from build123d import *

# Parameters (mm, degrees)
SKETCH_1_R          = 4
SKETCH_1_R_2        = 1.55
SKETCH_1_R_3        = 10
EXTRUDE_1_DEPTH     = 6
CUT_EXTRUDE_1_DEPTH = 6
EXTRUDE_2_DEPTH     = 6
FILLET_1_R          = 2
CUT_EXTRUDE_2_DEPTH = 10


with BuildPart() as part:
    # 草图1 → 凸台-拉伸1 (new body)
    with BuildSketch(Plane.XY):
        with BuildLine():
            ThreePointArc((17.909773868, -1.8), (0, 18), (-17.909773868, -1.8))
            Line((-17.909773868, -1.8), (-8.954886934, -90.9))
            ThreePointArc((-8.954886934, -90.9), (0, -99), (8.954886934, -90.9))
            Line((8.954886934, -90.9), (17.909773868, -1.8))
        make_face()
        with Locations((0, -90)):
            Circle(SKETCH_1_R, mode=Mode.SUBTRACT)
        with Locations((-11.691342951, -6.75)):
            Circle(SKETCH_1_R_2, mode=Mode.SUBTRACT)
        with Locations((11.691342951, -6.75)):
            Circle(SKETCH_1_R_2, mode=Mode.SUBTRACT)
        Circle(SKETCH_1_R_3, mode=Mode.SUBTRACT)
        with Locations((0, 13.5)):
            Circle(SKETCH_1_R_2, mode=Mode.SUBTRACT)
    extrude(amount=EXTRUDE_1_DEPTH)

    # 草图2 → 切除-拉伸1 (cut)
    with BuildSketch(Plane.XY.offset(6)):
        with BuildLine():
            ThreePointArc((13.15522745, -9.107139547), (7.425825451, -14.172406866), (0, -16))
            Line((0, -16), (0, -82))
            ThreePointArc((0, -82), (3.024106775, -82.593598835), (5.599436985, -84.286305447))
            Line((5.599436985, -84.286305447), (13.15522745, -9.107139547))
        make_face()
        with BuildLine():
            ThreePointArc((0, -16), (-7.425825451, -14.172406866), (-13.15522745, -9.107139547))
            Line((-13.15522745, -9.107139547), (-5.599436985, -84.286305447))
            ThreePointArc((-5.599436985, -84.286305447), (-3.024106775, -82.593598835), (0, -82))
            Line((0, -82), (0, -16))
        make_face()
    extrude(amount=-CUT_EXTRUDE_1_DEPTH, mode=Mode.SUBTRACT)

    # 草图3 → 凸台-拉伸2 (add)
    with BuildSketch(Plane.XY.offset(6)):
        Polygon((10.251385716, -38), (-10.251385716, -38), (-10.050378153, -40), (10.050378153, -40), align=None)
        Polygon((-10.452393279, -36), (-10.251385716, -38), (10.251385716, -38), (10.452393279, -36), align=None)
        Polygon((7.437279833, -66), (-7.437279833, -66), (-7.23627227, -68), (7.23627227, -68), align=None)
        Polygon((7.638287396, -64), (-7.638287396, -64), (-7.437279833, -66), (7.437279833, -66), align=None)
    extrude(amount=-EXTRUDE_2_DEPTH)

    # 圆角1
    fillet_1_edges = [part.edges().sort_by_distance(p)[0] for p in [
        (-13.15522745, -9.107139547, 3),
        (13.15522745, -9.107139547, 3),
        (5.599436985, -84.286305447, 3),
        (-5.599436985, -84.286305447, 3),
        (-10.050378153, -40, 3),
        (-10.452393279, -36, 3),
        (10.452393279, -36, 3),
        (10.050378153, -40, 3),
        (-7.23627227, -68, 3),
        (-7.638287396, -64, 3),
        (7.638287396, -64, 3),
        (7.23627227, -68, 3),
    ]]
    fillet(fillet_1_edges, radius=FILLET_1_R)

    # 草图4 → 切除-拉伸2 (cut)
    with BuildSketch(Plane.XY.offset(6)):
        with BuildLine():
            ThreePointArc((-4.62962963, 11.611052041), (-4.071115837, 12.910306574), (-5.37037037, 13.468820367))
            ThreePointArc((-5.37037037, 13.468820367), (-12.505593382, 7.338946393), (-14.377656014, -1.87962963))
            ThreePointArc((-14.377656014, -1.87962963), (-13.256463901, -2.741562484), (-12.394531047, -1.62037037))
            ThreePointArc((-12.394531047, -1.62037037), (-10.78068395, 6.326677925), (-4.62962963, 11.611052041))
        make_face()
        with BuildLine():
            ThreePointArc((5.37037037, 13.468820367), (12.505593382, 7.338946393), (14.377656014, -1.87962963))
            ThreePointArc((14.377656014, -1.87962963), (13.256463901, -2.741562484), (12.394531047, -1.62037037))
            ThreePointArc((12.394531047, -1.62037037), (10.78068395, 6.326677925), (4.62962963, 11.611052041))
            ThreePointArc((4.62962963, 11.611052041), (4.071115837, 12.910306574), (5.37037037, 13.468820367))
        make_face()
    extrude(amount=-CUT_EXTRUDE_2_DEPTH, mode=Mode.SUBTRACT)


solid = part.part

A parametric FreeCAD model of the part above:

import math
import FreeCAD as App
import Part
import Sketcher

V = App.Vector
Q = App.Units.Quantity


def edges_at(feature, points):
    """Names of the edges that pass closest to the given points."""
    edges = feature.Shape.Edges
    near = lambda p: min(range(len(edges)), key=lambda i: edges[i].distToShape(Part.Vertex(*p))[0])
    return sorted({f"Edge{near(p) + 1}" for p in points})


def add_polygon(sketch, points):
    """Adds a closed chain of lines whose ends are joined by coincident constraints."""
    first, n = sketch.GeometryCount, len(points)
    for a, b in zip(points, points[1:] + points[:1]):
        sketch.addGeometry(Part.LineSegment(App.Vector(*a, 0), App.Vector(*b, 0)), False)
    for i in range(n):
        sketch.addConstraint(Sketcher.Constraint("Coincident", first + i, 2, first + (i + 1) % n, 1))

doc = App.newDocument("Part")
body = doc.addObject("PartDesign::Body", "Body")

sketch1 = body.newObject("Sketcher::SketchObject", "Sketch")
sketch1.AttachmentSupport = (doc.getObject("XY_Plane"), [""])
sketch1.MapMode = "FlatFace"
sketch1.addGeometry([
    Part.ArcOfCircle(Part.Circle(V(0, 0, 0), V(0, 0, 1), 18), math.radians(-6), math.radians(186)),
    Part.LineSegment(V(-17.9, -1.8, 0), V(-9, -90.9, 0)),
    Part.ArcOfCircle(Part.Circle(V(0, -90, 0), V(0, 0, 1), 9), math.radians(-174), math.radians(-6)),
    Part.LineSegment(V(9, -90.9, 0), V(17.9, -1.8, 0)),
    Part.Circle(V(0, -90, 0), V(0, 0, 1), 4),
    Part.Circle(V(-11.7, -6.8, 0), V(0, 0, 1), 1.6),
    Part.Circle(V(0, 0, 0), V(0, 0, 1), 10),
    Part.Circle(V(0, 13.5, 0), V(0, 0, 1), 1.6),
    Part.Circle(V(11.7, -6.8, 0), V(0, 0, 1), 1.6),
], False)
sketch1.addConstraint([
    Sketcher.Constraint("Tangent", 0, 2, 1, 1),
    Sketcher.Constraint("Tangent", 1, 2, 2, 1),
    Sketcher.Constraint("Tangent", 2, 2, 3, 1),
    Sketcher.Constraint("Tangent", 3, 2, 0, 1),
    Sketcher.Constraint("Coincident", 0, 3, -1, 1),
    Sketcher.Constraint("Coincident", 6, 3, -1, 1),
    Sketcher.Constraint("Coincident", 4, 3, 2, 3),
    Sketcher.Constraint("Equal", 5, 7),
    Sketcher.Constraint("Equal", 7, 8),
    Sketcher.Constraint("Symmetric", 5, 3, 8, 3, -2),
    Sketcher.Constraint("PointOnObject", 2, 3, -2),
    Sketcher.Constraint("PointOnObject", 7, 3, -2),
    Sketcher.Constraint("Diameter", 4, Q("8 mm")),
    Sketcher.Constraint("Diameter", 6, Q("20 mm")),
    Sketcher.Constraint("Radius", 0, Q("18 mm")),
    Sketcher.Constraint("Radius", 2, Q("9 mm")),
    Sketcher.Constraint("Diameter", 5, Q("3.1 mm")),
    Sketcher.Constraint("DistanceY", 2, 3, -1, 1, Q("90 mm")),
    Sketcher.Constraint("DistanceY", -1, 1, 7, 3, Q("13.5 mm")),
    Sketcher.Constraint("DistanceY", 5, 3, -1, 1, Q("6.75 mm")),
    Sketcher.Constraint("DistanceX", 0, 2, 5, 3, Q("6.218431 mm")),
])
pad1 = body.newObject("PartDesign::Pad", "Pad")
pad1.Profile = sketch1
pad1.Length = 6

sketch2 = body.newObject("Sketcher::SketchObject", "Sketch001")
sketch2.AttachmentSupport = (doc.getObject("XY_Plane"), [""])
sketch2.MapMode = "FlatFace"
sketch2.AttachmentOffset = App.Placement(V(0, 0, 6), App.Rotation())
sketch2.addGeometry([
    Part.ArcOfCircle(Part.Circle(V(0, 0, 0), V(0, 0, 1), 16), math.radians(-90), math.radians(-35)),
    Part.ArcOfCircle(Part.Circle(V(0, 0, 0), V(0, 0, 1), 16), math.radians(-145), math.radians(-90)),
    Part.LineSegment(V(-13, -9, 0), V(-6, -84, 0)),
    Part.ArcOfCircle(Part.Circle(V(0, -90, 0), V(0, 0, 1), 8), math.radians(90), math.radians(134)),
    Part.ArcOfCircle(Part.Circle(V(0, -90, 0), V(0, 0, 1), 8), math.radians(46), math.radians(90)),
    Part.LineSegment(V(6, -84, 0), V(13, -9, 0)),
], False)
sketch2.addConstraint([
    Sketcher.Constraint("Tangent", 0, 1, 1, 2),
    Sketcher.Constraint("Coincident", 1, 1, 2, 1),
    Sketcher.Constraint("Coincident", 2, 2, 3, 2),
    Sketcher.Constraint("Tangent", 3, 1, 4, 2),
    Sketcher.Constraint("Coincident", 4, 1, 5, 1),
    Sketcher.Constraint("Coincident", 5, 2, 0, 2),
    Sketcher.Constraint("Coincident", 0, 3, -1, 1),
    Sketcher.Constraint("Equal", 0, 1),
    Sketcher.Constraint("Equal", 3, 4),
    Sketcher.Constraint("Symmetric", 2, 2, 4, 1, -2),
    Sketcher.Constraint("PointOnObject", 0, 1, -2),
    Sketcher.Constraint("PointOnObject", 3, 1, -2),
    Sketcher.Constraint("Horizontal", 1, 1, 5, 2),
    Sketcher.Constraint("Radius", 0, Q("16 mm")),
    Sketcher.Constraint("Radius", 3, Q("8 mm")),
    Sketcher.Constraint("DistanceY", 3, 3, -1, 1, Q("90 mm")),
    Sketcher.Constraint("DistanceY", 1, 1, -1, 1, Q("9.10714 mm")),
    Sketcher.Constraint("DistanceX", 1, 1, 2, 2, Q("7.55579 mm")),
])
pocket1 = body.newObject("PartDesign::Pocket", "Pocket")
pocket1.Profile = sketch2
pocket1.Length = 6

sketch3 = body.newObject("Sketcher::SketchObject", "Sketch002")
sketch3.AttachmentSupport = (doc.getObject("XY_Plane"), [""])
sketch3.MapMode = "FlatFace"
sketch3.AttachmentOffset = App.Placement(V(0, 0, 6), App.Rotation())
add_polygon(sketch3, [(-10.1, -40), (10.1, -40), (10.5, -36), (-10.5, -36)])
add_polygon(sketch3, [(-7.2, -68), (7.2, -68), (7.6, -64), (-7.6, -64)])
sketch3.addConstraint([
    Sketcher.Constraint("Horizontal", 0),
    Sketcher.Constraint("Horizontal", 2),
    Sketcher.Constraint("Horizontal", 4),
    Sketcher.Constraint("Horizontal", 6),
    Sketcher.Constraint("Parallel", 1, 5),
    Sketcher.Constraint("Parallel", 3, 7),
    Sketcher.Constraint("Equal", 1, 3),
    Sketcher.Constraint("Equal", 3, 5),
    Sketcher.Constraint("DistanceY", 0, 2, -1, 1, Q("40 mm")),
    Sketcher.Constraint("DistanceY", 1, 2, -1, 1, Q("36 mm")),
    Sketcher.Constraint("DistanceY", 4, 2, -1, 1, Q("68 mm")),
    Sketcher.Constraint("Distance", 1, Q("4.020151 mm")),
    Sketcher.Constraint("DistanceX", 0, 1, 0, 2, Q("20.100756 mm")),
    Sketcher.Constraint("DistanceX", 4, 1, 4, 2, Q("14.472545 mm")),
    Sketcher.Constraint("DistanceX", -1, 1, 0, 2, Q("10.050378 mm")),
    Sketcher.Constraint("DistanceX", 4, 2, 1, 2, Q("3.216121 mm")),
])
pad2 = body.newObject("PartDesign::Pad", "Pad001")
pad2.Profile = sketch3
pad2.Length = 6
pad2.Reversed = True
doc.recompute()

fillet = body.newObject("PartDesign::Fillet", "Fillet")
fillet.Base = (pad2, edges_at(pad2, [
    (-13.155, -9.107, 3),
    (13.155, -9.107, 3),
    (5.599, -84.286, 3),
    (-5.599, -84.286, 3),
    (-10.05, -40, 3),
    (-10.452, -36, 3),
    (10.452, -36, 3),
    (10.05, -40, 3),
    (-7.236, -68, 3),
    (-7.638, -64, 3),
    (7.638, -64, 3),
    (7.236, -68, 3),
]))
fillet.Radius = 2

sketch4 = body.newObject("Sketcher::SketchObject", "Sketch003")
sketch4.AttachmentSupport = (doc.getObject("XY_Plane"), [""])
sketch4.MapMode = "FlatFace"
sketch4.AttachmentOffset = App.Placement(V(0, 0, 6), App.Rotation())
sketch4.addGeometry([
    Part.ArcOfCircle(Part.Circle(V(-5, 12.5, 0), V(0, 0, 1), 1), math.radians(-68), math.radians(112)),
    Part.ArcOfCircle(Part.Circle(V(0, 0, 0), V(0, 0, 1), 14.5), math.radians(112), math.radians(187)),
    Part.ArcOfCircle(Part.Circle(V(-13.4, -1.8, 0), V(0, 0, 1), 1), math.radians(-173), math.radians(7)),
    Part.ArcOfCircle(Part.Circle(V(0, 0, 0), V(0, 0, 1), 12.5), math.radians(112), math.radians(187)),
    Part.ArcOfCircle(Part.Circle(V(0, 0, 0), V(0, 0, 1), 14.5), math.radians(-7), math.radians(68)),
    Part.ArcOfCircle(Part.Circle(V(5, 12.5, 0), V(0, 0, 1), 1), math.radians(68), math.radians(248)),
    Part.ArcOfCircle(Part.Circle(V(0, 0, 0), V(0, 0, 1), 12.5), math.radians(-7), math.radians(68)),
    Part.ArcOfCircle(Part.Circle(V(13.4, -1.8, 0), V(0, 0, 1), 1), math.radians(173), math.radians(353)),
], False)
sketch4.addConstraint([
    Sketcher.Constraint("Tangent", 0, 2, 1, 1),
    Sketcher.Constraint("Tangent", 1, 2, 2, 1),
    Sketcher.Constraint("Tangent", 2, 2, 3, 2),
    Sketcher.Constraint("Tangent", 3, 1, 0, 1),
    Sketcher.Constraint("Tangent", 4, 2, 5, 1),
    Sketcher.Constraint("Tangent", 5, 2, 6, 2),
    Sketcher.Constraint("Tangent", 6, 1, 7, 1),
    Sketcher.Constraint("Tangent", 7, 2, 4, 1),
    Sketcher.Constraint("Coincident", 1, 3, -1, 1),
    Sketcher.Constraint("Coincident", 3, 3, -1, 1),
    Sketcher.Constraint("Coincident", 4, 3, -1, 1),
    Sketcher.Constraint("Coincident", 6, 3, -1, 1),
    Sketcher.Constraint("Equal", 1, 4),
    Sketcher.Constraint("Equal", 2, 5),
    Sketcher.Constraint("Horizontal", 0, 3, 5, 3),
    Sketcher.Constraint("Horizontal", 2, 3, 7, 3),
    Sketcher.Constraint("Radius", 0, Q("1 mm")),
    Sketcher.Constraint("Radius", 1, Q("14.5 mm")),
    Sketcher.Constraint("DistanceX", 0, 3, -1, 1, Q("5 mm")),
    Sketcher.Constraint("DistanceY", 2, 3, -1, 1, Q("1.75 mm")),
])
pocket2 = body.newObject("PartDesign::Pocket", "Pocket001")
pocket2.Profile = sketch4
pocket2.Length = 10

doc.recompute()
